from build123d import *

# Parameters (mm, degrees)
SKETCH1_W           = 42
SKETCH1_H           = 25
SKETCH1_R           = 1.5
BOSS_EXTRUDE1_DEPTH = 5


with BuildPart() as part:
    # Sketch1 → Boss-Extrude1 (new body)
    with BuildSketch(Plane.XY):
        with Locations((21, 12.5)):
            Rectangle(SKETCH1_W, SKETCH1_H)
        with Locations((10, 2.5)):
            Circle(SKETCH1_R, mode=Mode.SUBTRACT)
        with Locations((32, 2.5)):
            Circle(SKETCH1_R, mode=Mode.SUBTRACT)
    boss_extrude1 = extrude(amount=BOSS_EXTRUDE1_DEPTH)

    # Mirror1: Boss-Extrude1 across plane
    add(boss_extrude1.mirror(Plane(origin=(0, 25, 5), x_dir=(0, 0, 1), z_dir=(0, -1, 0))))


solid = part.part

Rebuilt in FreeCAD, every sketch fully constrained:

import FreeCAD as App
import Part
import Sketcher

V = App.Vector


def add_polygon(sketch, points):
    """Adds a closed chain of lines whose ends are joined by coincident constraints."""
    first, n = sketch.GeometryCount, len(points)
    for a, b in zip(points, points[1:] + points[:1]):
        sketch.addGeometry(Part.LineSegment(App.Vector(*a, 0), App.Vector(*b, 0)), False)
    for i in range(n):
        sketch.addConstraint(Sketcher.Constraint("Coincident", first + i, 2, first + (i + 1) % n, 1))

doc = App.newDocument("Part")
body = doc.addObject("PartDesign::Body", "Body")

# Sketch on XY plane
sketch1 = doc.addObject("Sketcher::SketchObject", "Sketch")
body.addObject(sketch1)
sketch1.AttachmentSupport = (doc.XY_Plane, [""])
sketch1.MapMode = "FlatFace"
add_polygon(sketch1, [(0, 25), (0, 0), (42, 0), (42, 25)])  # lines 0-3
sketch1.addGeometry(Part.Circle(V(10, 2.5, 0), V(0, 0, 1), 1.5), False)  # 4
sketch1.addGeometry(Part.Circle(V(32, 2.5, 0), V(0, 0, 1), 1.5), False)  # 5
sketch1.addConstraint([
    Sketcher.Constraint("Vertical", 0),
    Sketcher.Constraint("Horizontal", 1),
    Sketcher.Constraint("Vertical", 2),
    Sketcher.Constraint("Horizontal", 3),
    Sketcher.Constraint("Coincident", 0, 2, -1, 1),
    Sketcher.Constraint("Equal", 4, 5),
    Sketcher.Constraint("Horizontal", 4, 3, 5, 3),
    Sketcher.Constraint("Diameter", 4, 3.0),
    Sketcher.Constraint("DistanceX", 1, 1, 1, 2, 42.0),
    Sketcher.Constraint("DistanceY", 0, 2, 0, 1, 25.0),
    Sketcher.Constraint("DistanceX", -1, 1, 4, 3, 10.0),
    Sketcher.Constraint("DistanceX", -1, 1, 5, 3, 32.0),
    Sketcher.Constraint("DistanceY", -1, 1, 4, 3, 2.5),
])
pad1 = doc.addObject("PartDesign::Pad", "Pad")
body.addObject(pad1)
pad1.Profile = sketch1
pad1.Length = 5
doc.recompute()

datumplane = doc.addObject("PartDesign::Plane", "DatumPlane")
body.addObject(datumplane)
datumplane.AttachmentSupport = (doc.XZ_Plane, [""])
datumplane.MapMode = "FlatFace"
datumplane.AttachmentOffset = App.Placement(V(0, 0, -25), App.Rotation())
mirrored = doc.addObject("PartDesign::Mirrored", "Mirrored")
body.addObject(mirrored)
mirrored.Originals = [pad1]
mirrored.MirrorPlane = (datumplane, [""])
body.Tip = mirrored

doc.recompute()
